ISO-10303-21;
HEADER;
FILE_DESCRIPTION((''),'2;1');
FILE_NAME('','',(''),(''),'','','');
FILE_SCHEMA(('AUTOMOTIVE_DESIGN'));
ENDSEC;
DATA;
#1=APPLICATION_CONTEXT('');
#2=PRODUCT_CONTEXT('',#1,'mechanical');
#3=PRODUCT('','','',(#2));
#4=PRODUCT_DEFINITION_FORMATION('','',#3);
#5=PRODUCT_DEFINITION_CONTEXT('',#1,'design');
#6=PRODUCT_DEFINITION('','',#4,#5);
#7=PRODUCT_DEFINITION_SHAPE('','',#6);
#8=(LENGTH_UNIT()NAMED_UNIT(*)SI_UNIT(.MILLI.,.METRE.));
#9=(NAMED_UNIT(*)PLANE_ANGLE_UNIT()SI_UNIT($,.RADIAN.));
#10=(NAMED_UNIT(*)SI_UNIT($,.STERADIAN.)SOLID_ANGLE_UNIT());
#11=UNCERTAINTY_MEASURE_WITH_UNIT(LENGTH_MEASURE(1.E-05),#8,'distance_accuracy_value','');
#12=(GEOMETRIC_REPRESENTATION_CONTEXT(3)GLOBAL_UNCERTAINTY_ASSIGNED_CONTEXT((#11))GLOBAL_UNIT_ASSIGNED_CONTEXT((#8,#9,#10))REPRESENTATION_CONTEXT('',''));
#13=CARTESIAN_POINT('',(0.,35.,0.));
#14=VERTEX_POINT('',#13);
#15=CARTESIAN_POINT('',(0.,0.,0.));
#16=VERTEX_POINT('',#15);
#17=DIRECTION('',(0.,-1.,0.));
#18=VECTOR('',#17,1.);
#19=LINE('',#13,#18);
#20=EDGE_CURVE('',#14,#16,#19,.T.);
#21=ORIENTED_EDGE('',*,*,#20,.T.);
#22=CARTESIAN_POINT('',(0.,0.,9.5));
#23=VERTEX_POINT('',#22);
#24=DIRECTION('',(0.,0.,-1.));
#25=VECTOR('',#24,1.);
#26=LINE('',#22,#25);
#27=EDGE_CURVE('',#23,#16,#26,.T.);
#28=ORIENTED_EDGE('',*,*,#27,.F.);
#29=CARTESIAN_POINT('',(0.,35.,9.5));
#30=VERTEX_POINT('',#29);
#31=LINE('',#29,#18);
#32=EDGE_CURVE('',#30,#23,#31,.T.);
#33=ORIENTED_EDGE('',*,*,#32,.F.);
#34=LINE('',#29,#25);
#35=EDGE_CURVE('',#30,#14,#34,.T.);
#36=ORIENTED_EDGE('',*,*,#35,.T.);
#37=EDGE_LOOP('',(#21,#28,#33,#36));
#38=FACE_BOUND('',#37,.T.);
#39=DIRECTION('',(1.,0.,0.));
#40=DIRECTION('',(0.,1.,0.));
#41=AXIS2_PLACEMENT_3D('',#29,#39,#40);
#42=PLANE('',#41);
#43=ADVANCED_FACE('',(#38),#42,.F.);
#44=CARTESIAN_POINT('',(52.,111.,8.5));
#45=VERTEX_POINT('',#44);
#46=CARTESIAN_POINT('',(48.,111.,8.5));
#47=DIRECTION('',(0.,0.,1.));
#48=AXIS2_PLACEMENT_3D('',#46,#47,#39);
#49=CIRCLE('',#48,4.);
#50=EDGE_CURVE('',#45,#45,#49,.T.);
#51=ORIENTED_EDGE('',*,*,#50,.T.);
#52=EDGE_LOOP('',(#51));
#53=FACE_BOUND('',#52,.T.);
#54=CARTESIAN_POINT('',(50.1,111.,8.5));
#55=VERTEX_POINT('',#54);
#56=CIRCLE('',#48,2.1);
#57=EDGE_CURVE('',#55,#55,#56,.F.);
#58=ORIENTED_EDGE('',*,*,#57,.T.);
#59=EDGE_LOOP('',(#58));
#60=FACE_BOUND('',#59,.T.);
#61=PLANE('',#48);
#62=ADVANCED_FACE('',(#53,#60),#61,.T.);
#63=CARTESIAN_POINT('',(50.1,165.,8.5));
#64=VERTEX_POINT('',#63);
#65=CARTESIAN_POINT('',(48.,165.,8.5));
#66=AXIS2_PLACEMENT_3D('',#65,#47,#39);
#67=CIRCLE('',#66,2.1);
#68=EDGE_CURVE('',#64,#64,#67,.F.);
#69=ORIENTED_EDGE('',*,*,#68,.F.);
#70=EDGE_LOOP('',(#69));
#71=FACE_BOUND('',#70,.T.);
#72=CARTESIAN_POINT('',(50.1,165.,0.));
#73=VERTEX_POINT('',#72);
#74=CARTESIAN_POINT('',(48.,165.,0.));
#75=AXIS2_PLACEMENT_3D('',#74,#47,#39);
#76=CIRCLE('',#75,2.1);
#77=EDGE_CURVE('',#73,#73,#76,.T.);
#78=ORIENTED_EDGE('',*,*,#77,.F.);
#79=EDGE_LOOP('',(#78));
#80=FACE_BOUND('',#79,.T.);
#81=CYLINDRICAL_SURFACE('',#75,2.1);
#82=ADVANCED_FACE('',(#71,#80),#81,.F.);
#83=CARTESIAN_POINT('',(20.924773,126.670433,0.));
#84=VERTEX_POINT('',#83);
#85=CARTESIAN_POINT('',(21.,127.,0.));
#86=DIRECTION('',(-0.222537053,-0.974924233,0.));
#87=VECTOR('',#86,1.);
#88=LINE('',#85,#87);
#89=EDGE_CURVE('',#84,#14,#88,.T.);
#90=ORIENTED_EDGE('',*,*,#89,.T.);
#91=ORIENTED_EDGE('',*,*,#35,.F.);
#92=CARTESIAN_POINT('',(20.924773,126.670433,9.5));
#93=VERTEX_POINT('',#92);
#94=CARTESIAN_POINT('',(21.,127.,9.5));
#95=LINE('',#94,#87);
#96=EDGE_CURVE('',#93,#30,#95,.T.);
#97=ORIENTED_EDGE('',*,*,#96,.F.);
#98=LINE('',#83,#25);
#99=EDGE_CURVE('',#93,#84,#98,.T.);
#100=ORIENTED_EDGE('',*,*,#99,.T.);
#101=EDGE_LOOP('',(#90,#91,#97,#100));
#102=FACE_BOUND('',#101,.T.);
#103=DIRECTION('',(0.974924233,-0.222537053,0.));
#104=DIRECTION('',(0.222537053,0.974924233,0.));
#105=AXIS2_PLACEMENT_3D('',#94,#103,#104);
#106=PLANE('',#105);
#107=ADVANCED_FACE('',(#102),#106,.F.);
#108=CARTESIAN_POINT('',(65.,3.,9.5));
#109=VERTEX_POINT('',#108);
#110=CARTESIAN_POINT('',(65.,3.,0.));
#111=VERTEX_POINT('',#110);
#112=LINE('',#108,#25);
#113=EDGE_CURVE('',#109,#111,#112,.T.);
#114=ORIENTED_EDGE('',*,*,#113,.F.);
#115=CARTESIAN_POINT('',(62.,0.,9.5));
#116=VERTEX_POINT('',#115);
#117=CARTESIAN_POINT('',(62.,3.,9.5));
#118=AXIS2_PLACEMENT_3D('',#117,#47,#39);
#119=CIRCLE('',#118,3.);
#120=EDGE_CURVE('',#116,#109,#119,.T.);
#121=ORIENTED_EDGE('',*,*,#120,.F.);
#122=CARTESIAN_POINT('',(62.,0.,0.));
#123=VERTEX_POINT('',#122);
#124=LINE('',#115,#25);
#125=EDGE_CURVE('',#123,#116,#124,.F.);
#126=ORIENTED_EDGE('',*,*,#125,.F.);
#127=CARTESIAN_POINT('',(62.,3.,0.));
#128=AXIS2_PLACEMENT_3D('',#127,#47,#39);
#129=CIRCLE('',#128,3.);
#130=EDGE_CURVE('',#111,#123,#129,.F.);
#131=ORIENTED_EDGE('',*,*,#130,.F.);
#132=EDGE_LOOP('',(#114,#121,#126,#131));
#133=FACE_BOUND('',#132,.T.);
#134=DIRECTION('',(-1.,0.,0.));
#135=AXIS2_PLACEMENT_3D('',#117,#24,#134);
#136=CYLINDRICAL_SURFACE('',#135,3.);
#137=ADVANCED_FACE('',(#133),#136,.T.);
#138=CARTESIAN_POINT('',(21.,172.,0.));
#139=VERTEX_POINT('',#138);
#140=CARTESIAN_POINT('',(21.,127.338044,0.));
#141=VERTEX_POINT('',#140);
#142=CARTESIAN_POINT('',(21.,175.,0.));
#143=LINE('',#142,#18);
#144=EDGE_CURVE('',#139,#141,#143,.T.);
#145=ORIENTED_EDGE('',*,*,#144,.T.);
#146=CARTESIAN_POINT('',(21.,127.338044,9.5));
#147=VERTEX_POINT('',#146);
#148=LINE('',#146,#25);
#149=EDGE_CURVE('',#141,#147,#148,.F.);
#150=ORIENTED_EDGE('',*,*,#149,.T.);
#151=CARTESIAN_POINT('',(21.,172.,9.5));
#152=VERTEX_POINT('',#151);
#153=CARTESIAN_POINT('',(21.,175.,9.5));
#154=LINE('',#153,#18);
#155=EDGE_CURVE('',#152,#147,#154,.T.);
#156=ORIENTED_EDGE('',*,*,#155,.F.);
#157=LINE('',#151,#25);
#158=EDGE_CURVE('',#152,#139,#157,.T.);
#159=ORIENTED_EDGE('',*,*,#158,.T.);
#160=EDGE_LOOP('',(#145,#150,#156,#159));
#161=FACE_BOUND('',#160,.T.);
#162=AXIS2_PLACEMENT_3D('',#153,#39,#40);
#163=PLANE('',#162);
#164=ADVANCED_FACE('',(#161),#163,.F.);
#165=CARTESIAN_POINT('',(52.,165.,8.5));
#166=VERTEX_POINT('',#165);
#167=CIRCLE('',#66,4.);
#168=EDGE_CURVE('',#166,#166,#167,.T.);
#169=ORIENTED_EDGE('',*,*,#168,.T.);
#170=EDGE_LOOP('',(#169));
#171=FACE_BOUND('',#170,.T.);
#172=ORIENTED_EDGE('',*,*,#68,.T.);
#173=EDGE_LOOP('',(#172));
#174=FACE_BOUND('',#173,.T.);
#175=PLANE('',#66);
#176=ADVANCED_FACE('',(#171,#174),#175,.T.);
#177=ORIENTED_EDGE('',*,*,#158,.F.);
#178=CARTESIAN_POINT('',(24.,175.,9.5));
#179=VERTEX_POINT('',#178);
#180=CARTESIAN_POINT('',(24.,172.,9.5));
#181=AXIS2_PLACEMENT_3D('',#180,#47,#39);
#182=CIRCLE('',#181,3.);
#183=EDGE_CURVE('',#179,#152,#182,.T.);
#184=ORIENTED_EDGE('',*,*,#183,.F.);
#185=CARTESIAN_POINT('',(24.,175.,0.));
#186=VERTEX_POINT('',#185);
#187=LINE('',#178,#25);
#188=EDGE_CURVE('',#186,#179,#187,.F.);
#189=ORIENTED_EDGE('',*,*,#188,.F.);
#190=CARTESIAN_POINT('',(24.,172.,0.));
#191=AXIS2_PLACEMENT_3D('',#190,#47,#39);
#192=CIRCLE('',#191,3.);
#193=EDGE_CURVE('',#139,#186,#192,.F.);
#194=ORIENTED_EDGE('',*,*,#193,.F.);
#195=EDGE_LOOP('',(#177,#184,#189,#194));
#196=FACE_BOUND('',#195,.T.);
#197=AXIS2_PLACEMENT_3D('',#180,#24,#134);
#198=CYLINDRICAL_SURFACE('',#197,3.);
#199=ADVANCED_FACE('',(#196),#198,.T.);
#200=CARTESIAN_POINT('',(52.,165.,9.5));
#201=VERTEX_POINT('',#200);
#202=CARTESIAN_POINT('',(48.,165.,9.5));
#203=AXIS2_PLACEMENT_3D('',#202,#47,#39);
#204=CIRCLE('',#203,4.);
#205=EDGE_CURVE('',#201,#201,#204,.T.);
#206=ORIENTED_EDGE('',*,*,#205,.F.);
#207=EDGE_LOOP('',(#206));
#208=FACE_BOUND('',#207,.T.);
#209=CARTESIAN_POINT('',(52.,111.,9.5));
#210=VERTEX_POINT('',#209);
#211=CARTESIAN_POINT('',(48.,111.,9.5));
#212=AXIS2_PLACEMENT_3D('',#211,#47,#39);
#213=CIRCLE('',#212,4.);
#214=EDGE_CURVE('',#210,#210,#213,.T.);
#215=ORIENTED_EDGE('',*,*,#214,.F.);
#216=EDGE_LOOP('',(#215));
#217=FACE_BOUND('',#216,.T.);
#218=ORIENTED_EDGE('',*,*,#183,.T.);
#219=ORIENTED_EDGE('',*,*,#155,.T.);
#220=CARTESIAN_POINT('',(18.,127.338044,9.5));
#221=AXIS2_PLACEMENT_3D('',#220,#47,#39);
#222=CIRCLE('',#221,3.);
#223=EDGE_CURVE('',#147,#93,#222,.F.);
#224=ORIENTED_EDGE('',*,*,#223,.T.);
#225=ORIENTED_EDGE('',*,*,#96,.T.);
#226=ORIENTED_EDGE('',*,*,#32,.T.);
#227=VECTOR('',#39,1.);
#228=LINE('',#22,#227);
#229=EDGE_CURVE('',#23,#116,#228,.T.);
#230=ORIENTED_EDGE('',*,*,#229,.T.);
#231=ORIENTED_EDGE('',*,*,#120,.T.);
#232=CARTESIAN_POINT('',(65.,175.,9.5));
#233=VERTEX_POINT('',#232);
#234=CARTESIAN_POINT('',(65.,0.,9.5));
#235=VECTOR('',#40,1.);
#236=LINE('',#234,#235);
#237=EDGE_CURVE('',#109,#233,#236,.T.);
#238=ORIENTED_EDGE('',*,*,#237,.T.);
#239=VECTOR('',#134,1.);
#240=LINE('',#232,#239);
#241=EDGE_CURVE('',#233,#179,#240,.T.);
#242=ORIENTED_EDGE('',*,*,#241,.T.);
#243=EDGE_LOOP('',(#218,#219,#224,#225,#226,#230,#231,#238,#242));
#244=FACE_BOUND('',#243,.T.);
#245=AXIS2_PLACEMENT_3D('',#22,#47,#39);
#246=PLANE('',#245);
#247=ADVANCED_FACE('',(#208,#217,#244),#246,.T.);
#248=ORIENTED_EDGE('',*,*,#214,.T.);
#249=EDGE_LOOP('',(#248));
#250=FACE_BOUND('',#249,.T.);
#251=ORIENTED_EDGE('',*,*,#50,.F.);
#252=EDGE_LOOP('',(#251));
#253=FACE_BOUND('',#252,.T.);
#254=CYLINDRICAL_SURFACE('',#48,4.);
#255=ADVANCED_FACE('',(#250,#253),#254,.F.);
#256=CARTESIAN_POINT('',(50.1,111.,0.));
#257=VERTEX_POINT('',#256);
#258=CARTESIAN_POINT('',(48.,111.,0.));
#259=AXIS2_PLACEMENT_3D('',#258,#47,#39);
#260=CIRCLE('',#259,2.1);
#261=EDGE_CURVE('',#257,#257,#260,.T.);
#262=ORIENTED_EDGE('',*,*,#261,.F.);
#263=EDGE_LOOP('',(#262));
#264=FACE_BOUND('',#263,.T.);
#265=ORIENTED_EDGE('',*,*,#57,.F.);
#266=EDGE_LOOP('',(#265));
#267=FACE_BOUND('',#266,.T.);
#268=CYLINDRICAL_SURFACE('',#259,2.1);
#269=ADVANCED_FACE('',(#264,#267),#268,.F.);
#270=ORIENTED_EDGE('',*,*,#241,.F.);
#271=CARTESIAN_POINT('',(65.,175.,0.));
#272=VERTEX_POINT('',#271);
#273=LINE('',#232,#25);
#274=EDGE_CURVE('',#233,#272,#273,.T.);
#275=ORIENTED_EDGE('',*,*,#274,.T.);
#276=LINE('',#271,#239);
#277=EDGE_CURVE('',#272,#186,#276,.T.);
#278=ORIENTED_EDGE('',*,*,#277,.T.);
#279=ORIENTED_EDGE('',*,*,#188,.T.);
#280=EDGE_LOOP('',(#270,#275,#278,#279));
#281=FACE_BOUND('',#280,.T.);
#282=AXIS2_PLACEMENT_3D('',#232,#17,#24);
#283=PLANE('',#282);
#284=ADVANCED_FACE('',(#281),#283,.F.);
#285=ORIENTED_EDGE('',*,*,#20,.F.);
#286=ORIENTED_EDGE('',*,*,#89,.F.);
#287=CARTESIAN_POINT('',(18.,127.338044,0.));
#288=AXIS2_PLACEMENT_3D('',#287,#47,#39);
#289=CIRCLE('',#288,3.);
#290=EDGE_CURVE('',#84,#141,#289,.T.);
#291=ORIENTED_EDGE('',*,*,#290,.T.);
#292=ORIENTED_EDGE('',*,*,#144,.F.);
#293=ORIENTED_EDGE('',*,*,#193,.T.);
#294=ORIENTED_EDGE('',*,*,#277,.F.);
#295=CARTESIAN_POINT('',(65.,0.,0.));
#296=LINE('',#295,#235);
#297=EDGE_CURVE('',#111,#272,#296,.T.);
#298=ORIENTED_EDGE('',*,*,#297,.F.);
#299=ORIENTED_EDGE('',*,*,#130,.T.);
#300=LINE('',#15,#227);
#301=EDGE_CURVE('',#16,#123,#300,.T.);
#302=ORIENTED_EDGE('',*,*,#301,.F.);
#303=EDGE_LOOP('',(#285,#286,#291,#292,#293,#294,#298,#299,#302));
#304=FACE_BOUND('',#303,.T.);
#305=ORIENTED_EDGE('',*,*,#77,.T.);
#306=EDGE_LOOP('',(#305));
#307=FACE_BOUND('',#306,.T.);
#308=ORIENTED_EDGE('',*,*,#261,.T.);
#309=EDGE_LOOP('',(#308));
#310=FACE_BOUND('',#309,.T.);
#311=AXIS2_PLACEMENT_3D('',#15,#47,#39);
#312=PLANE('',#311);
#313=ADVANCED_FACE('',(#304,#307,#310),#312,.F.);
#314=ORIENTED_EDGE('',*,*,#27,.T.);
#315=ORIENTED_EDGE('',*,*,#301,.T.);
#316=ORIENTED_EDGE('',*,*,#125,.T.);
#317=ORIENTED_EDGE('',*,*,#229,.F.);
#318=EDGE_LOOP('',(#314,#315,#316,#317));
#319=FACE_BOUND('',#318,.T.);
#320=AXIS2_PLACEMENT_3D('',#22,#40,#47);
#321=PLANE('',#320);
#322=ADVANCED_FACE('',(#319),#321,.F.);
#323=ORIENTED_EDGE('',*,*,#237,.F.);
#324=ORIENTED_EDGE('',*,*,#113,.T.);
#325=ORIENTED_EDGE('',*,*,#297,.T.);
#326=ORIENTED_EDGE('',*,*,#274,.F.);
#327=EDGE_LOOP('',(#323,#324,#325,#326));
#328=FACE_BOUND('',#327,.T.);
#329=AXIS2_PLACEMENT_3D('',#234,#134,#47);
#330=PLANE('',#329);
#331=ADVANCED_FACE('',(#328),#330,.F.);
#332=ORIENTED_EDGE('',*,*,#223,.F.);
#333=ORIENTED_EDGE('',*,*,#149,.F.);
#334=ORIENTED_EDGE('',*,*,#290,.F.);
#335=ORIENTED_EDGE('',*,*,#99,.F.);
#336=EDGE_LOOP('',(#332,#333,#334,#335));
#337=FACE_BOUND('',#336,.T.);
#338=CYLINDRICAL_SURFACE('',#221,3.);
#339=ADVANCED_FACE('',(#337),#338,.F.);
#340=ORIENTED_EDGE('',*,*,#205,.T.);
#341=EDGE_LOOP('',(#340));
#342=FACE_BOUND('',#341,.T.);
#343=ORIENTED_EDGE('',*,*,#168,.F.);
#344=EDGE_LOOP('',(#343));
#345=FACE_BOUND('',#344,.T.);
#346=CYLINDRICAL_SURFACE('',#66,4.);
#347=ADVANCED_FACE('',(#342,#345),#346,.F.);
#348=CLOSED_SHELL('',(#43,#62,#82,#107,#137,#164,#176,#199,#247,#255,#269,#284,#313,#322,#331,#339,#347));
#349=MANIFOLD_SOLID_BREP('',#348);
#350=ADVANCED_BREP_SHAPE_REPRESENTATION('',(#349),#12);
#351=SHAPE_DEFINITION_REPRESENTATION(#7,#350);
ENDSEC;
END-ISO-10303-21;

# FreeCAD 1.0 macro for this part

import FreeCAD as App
import Part
import Sketcher
from FreeCAD import Vector
Q = App.Units.Quantity


def edges_at(feature, points):
    """Names of the edges that pass closest to the given points."""
    edges = feature.Shape.Edges
    near = lambda p: min(range(len(edges)), key=lambda i: edges[i].distToShape(Part.Vertex(*p))[0])
    return sorted({f"Edge{near(p) + 1}" for p in points})

doc = App.newDocument("Part")
body = doc.addObject("PartDesign::Body", "Body")

sketch1 = body.newObject("Sketcher::SketchObject", "Sketch")
sketch1.AttachmentSupport = (doc.getObject("XY_Plane"), [""])
sketch1.MapMode = "FlatFace"
sketch1.addGeometry([
    Part.LineSegment(Vector(0, 0, 0), Vector(65, 0, 0)),
    Part.LineSegment(Vector(65, 0, 0), Vector(65, 175, 0)),
    Part.LineSegment(Vector(65, 175, 0), Vector(21, 175, 0)),
    Part.LineSegment(Vector(21, 175, 0), Vector(21, 127, 0)),
    Part.LineSegment(Vector(21, 127, 0), Vector(0, 35, 0)),
    Part.LineSegment(Vector(0, 35, 0), Vector(0, 0, 0)),
], False)
sketch1.addConstraint([
    Sketcher.Constraint("Coincident", 0, 2, 1, 1),
    Sketcher.Constraint("Coincident", 1, 2, 2, 1),
    Sketcher.Constraint("Coincident", 2, 2, 3, 1),
    Sketcher.Constraint("Coincident", 3, 2, 4, 1),
    Sketcher.Constraint("Coincident", 4, 2, 5, 1),
    Sketcher.Constraint("Coincident", 5, 2, 0, 1),
    Sketcher.Constraint("Horizontal", 0),
    Sketcher.Constraint("Vertical", 1),
    Sketcher.Constraint("Horizontal", 2),
    Sketcher.Constraint("Vertical", 3),
    Sketcher.Constraint("Vertical", 5),
    Sketcher.Constraint("Coincident", 5, 2, -1, 1),
    Sketcher.Constraint("DistanceX", 0, 1, 0, 2, Q("65 mm")),
    Sketcher.Constraint("DistanceX", 2, 2, 2, 1, Q("44 mm")),
    Sketcher.Constraint("DistanceY", 1, 1, 1, 2, Q("175 mm")),
    Sketcher.Constraint("DistanceY", 3, 2, 3, 1, Q("48 mm")),
    Sketcher.Constraint("DistanceY", 5, 2, 5, 1, Q("35 mm")),
])
pad1 = body.newObject("PartDesign::Pad", "Pad")
pad1.Profile = sketch1
pad1.Length = 9.5

sketch2 = body.newObject("Sketcher::SketchObject", "Sketch001")
sketch2.AttachmentSupport = (doc.getObject("XY_Plane"), [""])
sketch2.MapMode = "FlatFace"
sketch2.AttachmentOffset = App.Placement(Vector(0, 0, 9.5), App.Rotation())
sketch2.addGeometry([
    Part.Circle(Vector(48, 165, 0), Vector(0, 0, 1), 2.1),
    Part.Circle(Vector(48, 111, 0), Vector(0, 0, 1), 2.1),
], False)
sketch2.addConstraint([
    Sketcher.Constraint("Equal", 0, 1),
    Sketcher.Constraint("Vertical", 0, 3, 1, 3),
    Sketcher.Constraint("Diameter", 0, Q("4.2 mm")),
    Sketcher.Constraint("DistanceX", -1, 1, 0, 3, Q("48 mm")),
    Sketcher.Constraint("DistanceY", -1, 1, 0, 3, Q("165 mm")),
    Sketcher.Constraint("DistanceY", -1, 1, 1, 3, Q("111 mm")),
])
pocket1 = body.newObject("PartDesign::Pocket", "Pocket")
pocket1.Profile = sketch2
pocket1.Type = "ThroughAll"

sketch3 = body.newObject("Sketcher::SketchObject", "Sketch002")
sketch3.AttachmentSupport = (doc.getObject("XY_Plane"), [""])
sketch3.MapMode = "FlatFace"
sketch3.AttachmentOffset = App.Placement(Vector(0, 0, 9.5), App.Rotation())
sketch3.addGeometry([
    Part.Circle(Vector(48, 165, 0), Vector(0, 0, 1), 4),
    Part.Circle(Vector(48, 111, 0), Vector(0, 0, 1), 4),
], False)
sketch3.addConstraint([
    Sketcher.Constraint("Equal", 0, 1),
    Sketcher.Constraint("Vertical", 0, 3, 1, 3),
    Sketcher.Constraint("Diameter", 0, Q("8 mm")),
    Sketcher.Constraint("DistanceX", -1, 1, 0, 3, Q("48 mm")),
    Sketcher.Constraint("DistanceY", -1, 1, 0, 3, Q("165 mm")),
    Sketcher.Constraint("DistanceY", -1, 1, 1, 3, Q("111 mm")),
])
pocket2 = body.newObject("PartDesign::Pocket", "Pocket001")
pocket2.Profile = sketch3
pocket2.Length = 1
doc.recompute()

fillet = body.newObject("PartDesign::Fillet", "Fillet")
fillet.Base = (pocket2, edges_at(pocket2, [(21, 175, 4.75), (65, 0, 4.75), (21, 127, 4.75)]))
fillet.Radius = 3

doc.recompute()
